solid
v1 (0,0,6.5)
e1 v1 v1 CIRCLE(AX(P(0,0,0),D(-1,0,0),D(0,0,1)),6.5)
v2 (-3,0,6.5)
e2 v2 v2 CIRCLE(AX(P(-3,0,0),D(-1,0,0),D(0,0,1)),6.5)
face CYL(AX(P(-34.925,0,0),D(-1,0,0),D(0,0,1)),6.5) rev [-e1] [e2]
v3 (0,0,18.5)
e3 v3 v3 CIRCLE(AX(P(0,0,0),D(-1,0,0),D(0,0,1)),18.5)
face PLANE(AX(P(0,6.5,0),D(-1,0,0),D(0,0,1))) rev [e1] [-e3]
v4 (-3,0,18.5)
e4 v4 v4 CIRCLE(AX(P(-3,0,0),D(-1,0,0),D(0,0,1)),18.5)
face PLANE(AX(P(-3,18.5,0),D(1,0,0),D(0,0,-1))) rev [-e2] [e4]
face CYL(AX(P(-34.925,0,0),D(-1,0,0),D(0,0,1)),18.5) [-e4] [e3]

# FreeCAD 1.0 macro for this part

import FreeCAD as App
import Part
import Sketcher

V = App.Vector
Q = App.Units.Quantity

doc = App.newDocument("Part")
params = doc.addObject("Spreadsheet::Sheet", "Params")
for row, (alias, value) in enumerate([
    ("sketch1_width", "3 mm"),
    ("sketch1_height", "12 mm"),
    ("revolution_angle", "360 deg"),
], start=1):
    params.set(f"A{row}", alias)
    params.set(f"B{row}", "=" + value)
    params.setAlias(f"B{row}", alias)

body = doc.addObject("PartDesign::Body", "Body")

# Sketch on XY plane
sketch1 = body.newObject("Sketcher::SketchObject", "Sketch")
sketch1.AttachmentSupport = (doc.getObject("XY_Plane"), [""])
sketch1.MapMode = "FlatFace"
sketch1.addGeometry([
    Part.LineSegment(V(-3, 18.5, 0), V(-3, 6.5, 0)),
    Part.LineSegment(V(-3, 6.5, 0), V(0, 6.5, 0)),
    Part.LineSegment(V(0, 6.5, 0), V(0, 18.5, 0)),
    Part.LineSegment(V(0, 18.5, 0), V(-3, 18.5, 0)),
], False)
sketch1.addConstraint([
    Sketcher.Constraint("Coincident", 0, 2, 1, 1),
    Sketcher.Constraint("Coincident", 1, 2, 2, 1),
    Sketcher.Constraint("Coincident", 2, 2, 3, 1),
    Sketcher.Constraint("Coincident", 3, 2, 0, 1),
    Sketcher.Constraint("Vertical", 0),
    Sketcher.Constraint("Horizontal", 1),
    Sketcher.Constraint("Vertical", 2),
    Sketcher.Constraint("Horizontal", 3),
    Sketcher.Constraint("PointOnObject", 1, 2, -2),
    Sketcher.Constraint("DistanceX", 1, 1, 1, 2, Q("3 mm")),
    Sketcher.Constraint("DistanceY", 0, 2, 0, 1, Q("12 mm")),
    Sketcher.Constraint("DistanceY", -1, 1, 0, 2, Q("6.5 mm")),
])
sketch1.setExpression("Constraints[9]", "Params.sketch1_width")
sketch1.setExpression("Constraints[10]", "Params.sketch1_height")
revolution = body.newObject("PartDesign::Revolution", "Revolution")
revolution.Profile = sketch1
revolution.ReferenceAxis = (sketch1, ["H_Axis"])
revolution.setExpression("Angle", "Params.revolution_angle")

doc.recompute()
